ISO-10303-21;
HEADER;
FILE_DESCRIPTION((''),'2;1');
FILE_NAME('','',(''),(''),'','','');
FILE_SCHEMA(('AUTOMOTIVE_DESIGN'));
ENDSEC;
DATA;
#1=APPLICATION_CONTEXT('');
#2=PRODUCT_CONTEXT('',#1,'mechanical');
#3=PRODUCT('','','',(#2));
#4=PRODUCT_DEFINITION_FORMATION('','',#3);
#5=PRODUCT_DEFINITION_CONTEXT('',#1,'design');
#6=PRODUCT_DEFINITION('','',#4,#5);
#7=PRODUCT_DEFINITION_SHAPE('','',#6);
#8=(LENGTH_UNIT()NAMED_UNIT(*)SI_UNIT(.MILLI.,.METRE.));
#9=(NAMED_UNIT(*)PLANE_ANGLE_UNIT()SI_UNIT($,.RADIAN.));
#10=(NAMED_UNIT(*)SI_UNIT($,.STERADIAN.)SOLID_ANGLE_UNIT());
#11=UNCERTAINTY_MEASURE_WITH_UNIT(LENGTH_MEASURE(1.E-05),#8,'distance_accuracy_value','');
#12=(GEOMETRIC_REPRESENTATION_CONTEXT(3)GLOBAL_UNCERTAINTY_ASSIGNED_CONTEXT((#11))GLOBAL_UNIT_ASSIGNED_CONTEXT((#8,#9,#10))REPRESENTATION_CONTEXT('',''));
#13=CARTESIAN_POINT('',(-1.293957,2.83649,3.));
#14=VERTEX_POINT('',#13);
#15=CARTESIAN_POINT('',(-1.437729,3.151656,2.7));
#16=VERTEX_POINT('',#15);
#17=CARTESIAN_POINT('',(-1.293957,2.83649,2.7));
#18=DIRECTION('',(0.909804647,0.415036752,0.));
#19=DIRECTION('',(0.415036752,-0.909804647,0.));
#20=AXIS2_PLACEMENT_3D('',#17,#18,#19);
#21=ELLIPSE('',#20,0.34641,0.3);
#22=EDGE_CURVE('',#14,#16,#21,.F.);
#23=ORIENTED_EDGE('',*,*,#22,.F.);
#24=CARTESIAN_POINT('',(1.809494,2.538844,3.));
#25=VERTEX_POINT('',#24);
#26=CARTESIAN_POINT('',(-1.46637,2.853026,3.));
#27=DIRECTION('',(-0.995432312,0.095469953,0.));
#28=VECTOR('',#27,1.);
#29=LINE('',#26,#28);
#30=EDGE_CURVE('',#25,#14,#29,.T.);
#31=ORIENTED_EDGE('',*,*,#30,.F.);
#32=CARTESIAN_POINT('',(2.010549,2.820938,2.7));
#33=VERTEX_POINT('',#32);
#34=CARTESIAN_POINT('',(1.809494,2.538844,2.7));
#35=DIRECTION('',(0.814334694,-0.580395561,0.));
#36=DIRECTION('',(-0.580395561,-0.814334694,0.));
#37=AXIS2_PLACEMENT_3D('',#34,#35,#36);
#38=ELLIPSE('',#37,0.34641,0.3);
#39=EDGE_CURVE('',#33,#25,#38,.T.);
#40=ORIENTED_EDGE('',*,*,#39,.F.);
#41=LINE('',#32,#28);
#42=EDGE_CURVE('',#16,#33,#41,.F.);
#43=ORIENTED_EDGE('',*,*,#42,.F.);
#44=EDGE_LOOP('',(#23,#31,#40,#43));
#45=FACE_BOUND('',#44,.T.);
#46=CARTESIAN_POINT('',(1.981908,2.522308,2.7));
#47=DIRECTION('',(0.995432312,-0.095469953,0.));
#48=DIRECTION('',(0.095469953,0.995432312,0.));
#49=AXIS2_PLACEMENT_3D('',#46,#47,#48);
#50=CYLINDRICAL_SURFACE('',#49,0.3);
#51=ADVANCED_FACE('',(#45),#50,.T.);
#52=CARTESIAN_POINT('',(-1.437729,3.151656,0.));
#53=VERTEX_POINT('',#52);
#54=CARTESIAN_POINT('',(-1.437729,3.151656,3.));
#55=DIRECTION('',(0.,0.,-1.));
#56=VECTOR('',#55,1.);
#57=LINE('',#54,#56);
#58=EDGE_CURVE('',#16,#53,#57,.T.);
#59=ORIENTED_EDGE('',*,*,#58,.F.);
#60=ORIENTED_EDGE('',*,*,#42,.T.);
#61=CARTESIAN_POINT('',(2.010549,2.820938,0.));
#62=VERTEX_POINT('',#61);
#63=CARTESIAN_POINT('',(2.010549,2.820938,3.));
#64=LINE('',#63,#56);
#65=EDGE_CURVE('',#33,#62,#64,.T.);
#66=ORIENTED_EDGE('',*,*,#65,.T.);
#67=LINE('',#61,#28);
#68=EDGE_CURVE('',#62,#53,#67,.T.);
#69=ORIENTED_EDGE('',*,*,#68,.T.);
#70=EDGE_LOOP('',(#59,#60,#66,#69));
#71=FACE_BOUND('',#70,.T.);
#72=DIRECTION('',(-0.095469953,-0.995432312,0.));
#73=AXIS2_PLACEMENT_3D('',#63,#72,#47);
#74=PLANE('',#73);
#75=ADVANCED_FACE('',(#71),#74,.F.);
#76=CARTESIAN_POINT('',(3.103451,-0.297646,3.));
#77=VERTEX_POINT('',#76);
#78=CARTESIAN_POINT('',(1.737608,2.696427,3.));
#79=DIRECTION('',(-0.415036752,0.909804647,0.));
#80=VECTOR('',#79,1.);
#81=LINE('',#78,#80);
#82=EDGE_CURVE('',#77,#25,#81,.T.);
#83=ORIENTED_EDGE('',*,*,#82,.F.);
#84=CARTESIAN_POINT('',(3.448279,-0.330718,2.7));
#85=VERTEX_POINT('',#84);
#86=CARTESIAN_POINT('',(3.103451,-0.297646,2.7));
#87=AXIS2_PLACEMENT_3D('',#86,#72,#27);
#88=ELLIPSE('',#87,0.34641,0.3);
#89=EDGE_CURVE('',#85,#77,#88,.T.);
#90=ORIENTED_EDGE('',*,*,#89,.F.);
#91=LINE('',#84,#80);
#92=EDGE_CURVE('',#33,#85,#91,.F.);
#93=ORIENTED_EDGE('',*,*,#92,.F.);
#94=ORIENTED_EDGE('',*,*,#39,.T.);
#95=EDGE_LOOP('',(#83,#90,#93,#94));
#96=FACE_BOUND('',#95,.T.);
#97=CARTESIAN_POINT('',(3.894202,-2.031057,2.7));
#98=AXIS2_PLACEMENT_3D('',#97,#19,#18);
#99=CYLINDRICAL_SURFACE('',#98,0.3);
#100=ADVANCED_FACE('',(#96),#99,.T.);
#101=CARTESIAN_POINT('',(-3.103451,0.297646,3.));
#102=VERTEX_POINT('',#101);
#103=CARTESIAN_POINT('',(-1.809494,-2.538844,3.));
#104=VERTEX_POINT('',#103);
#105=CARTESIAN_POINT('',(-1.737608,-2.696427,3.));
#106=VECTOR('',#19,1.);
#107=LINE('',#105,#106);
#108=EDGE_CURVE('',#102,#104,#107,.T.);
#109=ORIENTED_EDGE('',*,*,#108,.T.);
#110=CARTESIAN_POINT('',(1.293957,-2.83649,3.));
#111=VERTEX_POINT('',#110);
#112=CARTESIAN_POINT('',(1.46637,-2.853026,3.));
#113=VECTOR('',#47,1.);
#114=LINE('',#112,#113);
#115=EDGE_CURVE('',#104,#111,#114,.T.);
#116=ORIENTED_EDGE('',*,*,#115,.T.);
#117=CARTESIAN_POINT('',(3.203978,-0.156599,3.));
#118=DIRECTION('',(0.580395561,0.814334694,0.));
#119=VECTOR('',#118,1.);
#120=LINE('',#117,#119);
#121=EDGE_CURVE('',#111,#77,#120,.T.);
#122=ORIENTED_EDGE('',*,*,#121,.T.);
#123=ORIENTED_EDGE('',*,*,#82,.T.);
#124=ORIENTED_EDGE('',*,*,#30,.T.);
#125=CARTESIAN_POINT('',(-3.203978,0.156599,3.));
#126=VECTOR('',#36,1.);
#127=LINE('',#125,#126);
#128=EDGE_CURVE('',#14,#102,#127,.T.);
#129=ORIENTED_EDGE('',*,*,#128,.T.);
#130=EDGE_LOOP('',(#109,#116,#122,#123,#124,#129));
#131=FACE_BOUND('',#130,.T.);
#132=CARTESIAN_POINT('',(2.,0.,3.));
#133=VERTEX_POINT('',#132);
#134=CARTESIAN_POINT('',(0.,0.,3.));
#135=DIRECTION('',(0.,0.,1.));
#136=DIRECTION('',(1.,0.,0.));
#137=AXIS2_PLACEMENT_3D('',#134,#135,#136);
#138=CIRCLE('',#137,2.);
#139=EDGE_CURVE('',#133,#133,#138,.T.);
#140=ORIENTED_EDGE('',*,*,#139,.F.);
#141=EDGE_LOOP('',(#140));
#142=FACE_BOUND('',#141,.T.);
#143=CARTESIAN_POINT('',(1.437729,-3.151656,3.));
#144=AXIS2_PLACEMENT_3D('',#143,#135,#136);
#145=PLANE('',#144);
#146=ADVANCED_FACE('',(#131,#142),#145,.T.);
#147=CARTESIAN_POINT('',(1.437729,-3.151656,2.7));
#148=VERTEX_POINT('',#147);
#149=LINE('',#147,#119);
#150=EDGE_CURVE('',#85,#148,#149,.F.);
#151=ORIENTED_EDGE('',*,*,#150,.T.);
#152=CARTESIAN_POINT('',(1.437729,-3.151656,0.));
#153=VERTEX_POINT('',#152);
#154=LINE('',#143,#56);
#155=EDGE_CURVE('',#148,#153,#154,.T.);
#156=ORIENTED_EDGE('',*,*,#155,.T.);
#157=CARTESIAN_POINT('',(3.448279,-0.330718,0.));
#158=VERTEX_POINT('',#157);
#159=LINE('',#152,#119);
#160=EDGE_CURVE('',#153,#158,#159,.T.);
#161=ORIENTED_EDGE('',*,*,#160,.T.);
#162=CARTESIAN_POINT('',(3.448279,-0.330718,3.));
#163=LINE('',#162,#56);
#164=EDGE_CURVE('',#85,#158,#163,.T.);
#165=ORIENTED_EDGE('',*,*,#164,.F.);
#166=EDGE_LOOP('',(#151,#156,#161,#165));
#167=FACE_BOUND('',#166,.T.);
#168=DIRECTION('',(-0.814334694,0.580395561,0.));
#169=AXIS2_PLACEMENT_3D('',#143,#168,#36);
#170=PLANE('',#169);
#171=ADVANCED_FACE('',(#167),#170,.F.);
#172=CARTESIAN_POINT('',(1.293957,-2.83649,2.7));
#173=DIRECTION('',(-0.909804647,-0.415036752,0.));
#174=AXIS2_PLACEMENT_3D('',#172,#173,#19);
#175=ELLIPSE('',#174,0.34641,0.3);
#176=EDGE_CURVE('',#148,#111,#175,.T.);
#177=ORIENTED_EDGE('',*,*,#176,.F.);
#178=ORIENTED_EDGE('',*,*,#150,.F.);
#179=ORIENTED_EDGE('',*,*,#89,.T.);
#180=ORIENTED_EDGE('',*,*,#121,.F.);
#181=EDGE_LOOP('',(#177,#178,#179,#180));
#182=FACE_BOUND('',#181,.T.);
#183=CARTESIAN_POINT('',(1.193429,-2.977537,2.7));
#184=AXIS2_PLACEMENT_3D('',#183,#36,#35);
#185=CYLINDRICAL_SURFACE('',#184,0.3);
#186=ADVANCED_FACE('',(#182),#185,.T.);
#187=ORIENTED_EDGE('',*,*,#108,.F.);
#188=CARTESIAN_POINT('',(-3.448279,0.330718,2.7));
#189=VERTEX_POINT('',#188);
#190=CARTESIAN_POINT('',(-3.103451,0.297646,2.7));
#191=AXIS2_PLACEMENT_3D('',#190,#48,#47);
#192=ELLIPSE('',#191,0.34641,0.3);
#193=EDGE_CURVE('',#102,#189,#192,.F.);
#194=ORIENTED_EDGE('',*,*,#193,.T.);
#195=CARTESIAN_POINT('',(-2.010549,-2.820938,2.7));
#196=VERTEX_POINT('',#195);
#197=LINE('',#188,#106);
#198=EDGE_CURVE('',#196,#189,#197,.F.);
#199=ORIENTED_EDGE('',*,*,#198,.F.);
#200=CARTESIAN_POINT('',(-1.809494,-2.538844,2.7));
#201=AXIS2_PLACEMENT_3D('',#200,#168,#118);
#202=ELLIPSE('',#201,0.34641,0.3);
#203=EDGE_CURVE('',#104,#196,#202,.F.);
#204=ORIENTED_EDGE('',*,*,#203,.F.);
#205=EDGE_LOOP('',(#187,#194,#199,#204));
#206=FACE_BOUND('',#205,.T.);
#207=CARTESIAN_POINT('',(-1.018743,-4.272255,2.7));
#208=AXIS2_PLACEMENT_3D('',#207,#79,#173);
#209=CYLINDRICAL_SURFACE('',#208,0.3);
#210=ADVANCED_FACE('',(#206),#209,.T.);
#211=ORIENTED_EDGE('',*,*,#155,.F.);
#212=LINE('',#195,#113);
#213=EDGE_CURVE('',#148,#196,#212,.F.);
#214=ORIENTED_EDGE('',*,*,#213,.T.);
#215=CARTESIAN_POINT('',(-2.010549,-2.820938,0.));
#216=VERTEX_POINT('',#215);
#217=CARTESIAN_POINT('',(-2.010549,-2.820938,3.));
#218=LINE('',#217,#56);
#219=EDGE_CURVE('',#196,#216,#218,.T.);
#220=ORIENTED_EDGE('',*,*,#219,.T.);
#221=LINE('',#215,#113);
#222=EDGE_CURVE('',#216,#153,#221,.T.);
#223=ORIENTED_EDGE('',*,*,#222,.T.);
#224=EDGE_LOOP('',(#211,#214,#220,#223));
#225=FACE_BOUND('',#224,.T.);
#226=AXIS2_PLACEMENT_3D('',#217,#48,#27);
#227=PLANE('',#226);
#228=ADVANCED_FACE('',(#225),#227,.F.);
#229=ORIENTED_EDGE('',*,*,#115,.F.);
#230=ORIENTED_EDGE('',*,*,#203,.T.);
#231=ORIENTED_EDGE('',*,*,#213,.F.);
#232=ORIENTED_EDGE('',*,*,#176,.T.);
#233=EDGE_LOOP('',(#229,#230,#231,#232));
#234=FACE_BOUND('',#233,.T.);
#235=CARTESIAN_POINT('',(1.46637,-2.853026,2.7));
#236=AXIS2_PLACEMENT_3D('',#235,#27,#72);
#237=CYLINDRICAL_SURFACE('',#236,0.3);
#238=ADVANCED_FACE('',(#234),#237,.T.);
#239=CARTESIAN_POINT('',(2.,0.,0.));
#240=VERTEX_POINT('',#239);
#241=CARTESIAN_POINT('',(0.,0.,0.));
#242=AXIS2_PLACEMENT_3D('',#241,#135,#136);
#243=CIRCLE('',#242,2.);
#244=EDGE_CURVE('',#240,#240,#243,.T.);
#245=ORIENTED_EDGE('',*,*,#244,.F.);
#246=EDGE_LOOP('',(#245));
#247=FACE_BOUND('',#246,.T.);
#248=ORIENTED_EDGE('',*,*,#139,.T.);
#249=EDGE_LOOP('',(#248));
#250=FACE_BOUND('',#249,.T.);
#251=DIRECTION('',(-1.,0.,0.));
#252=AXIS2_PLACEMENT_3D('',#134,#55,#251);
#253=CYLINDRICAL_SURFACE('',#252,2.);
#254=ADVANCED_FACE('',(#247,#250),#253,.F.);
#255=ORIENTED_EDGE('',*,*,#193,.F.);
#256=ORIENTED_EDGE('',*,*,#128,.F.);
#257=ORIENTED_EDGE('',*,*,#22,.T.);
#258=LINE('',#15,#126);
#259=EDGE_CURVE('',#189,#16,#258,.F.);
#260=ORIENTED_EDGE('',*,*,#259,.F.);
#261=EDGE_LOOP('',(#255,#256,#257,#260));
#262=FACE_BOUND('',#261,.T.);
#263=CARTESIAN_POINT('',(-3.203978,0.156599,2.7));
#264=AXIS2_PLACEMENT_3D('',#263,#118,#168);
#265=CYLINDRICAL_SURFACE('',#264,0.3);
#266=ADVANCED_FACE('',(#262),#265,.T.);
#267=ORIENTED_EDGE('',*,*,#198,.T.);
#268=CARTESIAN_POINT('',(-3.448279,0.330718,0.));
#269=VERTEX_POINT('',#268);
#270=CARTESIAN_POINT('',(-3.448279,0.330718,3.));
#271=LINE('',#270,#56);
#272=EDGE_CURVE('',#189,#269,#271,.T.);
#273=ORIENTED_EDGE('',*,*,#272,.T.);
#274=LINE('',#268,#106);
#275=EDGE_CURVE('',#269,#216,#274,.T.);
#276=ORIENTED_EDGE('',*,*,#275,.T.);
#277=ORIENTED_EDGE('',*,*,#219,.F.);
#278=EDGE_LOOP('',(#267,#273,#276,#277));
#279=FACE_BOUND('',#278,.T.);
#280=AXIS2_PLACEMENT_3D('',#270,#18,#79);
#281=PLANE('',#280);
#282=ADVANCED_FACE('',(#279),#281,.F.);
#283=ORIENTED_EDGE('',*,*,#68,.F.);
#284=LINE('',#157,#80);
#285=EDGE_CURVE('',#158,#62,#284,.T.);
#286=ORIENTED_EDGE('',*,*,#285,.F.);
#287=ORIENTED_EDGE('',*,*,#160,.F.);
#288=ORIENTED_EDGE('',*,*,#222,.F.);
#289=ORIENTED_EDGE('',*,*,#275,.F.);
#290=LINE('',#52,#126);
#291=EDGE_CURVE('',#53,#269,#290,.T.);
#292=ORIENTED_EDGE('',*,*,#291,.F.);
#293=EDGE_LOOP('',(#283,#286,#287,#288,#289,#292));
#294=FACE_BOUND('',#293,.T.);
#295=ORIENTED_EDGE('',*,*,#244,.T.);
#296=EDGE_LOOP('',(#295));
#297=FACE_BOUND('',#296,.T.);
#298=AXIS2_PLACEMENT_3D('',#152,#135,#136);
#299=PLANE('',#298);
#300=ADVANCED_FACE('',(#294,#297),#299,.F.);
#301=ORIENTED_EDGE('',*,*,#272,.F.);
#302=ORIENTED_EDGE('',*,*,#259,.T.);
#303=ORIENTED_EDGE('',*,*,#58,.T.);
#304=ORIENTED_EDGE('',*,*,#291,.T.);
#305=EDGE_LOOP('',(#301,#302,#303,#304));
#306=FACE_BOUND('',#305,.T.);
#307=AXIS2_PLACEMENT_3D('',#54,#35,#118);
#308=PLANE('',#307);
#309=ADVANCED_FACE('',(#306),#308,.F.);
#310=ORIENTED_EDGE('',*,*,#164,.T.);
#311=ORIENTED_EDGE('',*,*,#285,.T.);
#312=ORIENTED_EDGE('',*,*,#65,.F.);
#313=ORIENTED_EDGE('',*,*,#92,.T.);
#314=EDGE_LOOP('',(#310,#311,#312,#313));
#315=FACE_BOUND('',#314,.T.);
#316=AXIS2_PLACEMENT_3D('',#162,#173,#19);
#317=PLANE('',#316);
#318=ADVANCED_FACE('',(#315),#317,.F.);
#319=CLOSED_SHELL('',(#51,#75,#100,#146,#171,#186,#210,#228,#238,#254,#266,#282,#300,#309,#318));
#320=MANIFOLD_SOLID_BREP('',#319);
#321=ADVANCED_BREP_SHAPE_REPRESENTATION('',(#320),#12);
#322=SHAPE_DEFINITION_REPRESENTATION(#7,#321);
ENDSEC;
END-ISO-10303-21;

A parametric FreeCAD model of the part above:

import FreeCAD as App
import Part
import Sketcher

V = App.Vector


def edges_at(feature, points):
    """Names of the edges that pass closest to the given points."""
    edges = feature.Shape.Edges
    near = lambda p: min(range(len(edges)), key=lambda i: edges[i].distToShape(Part.Vertex(*p))[0])
    return sorted({f"Edge{near(p) + 1}" for p in points})


def add_polygon(sketch, points):
    """Adds a closed chain of lines whose ends are joined by coincident constraints."""
    first, n = sketch.GeometryCount, len(points)
    for a, b in zip(points, points[1:] + points[:1]):
        sketch.addGeometry(Part.LineSegment(App.Vector(*a, 0), App.Vector(*b, 0)), False)
    for i in range(n):
        sketch.addConstraint(Sketcher.Constraint("Coincident", first + i, 2, first + (i + 1) % n, 1))

doc = App.newDocument("Part")
body = doc.addObject("PartDesign::Body", "Body")

# Sketch on XY plane
sketch1 = body.newObject("Sketcher::SketchObject", "Sketch")
sketch1.AttachmentSupport = (doc.getObject("XY_Plane"), [""])
sketch1.MapMode = "FlatFace"
add_polygon(sketch1, [(1.437729, -3.151656), (3.448279, -0.330718), (2.010549, 2.820938), (-1.437729, 3.151656), (-3.448279, 0.330718), (-2.010549, -2.820938)])  # lines 0-5
sketch1.addGeometry(Part.Circle(V(0, 0, 0), V(0, 0, 1), 2), False)  # 6
sketch1.addConstraint([
    Sketcher.Constraint("Coincident", 6, 3, -1, 1),
    Sketcher.Constraint("Symmetric", 0, 2, 3, 2, -1, 1),
    Sketcher.Constraint("Symmetric", 1, 2, 4, 2, -1, 1),
    Sketcher.Constraint("Symmetric", 2, 2, 5, 2, -1, 1),
    Sketcher.Constraint("Equal", 0, 1),
    Sketcher.Constraint("Equal", 1, 2),
    Sketcher.Constraint("Diameter", 6, 4.0),
    Sketcher.Constraint("Distance", 0, 3.464102),
    Sketcher.Constraint("DistanceX", 4, 2, 1, 2, 4.021098),
    Sketcher.Constraint("DistanceX", -1, 1, 0, 2, 3.448279),
    Sketcher.Constraint("DistanceY", -1, 1, 1, 2, 2.820938),
])
pad1 = body.newObject("PartDesign::Pad", "Pad")
pad1.Profile = sketch1
pad1.Length = 3
doc.recompute()

fillet = body.newObject("PartDesign::Fillet", "Fillet")
fillet.Base = (pad1, edges_at(pad1, [
    (2.729, 1.245, 3),
    (0.286, 2.986, 3),
    (-2.443, 1.741, 3),
    (-2.729, -1.245, 3),
    (-0.286, -2.986, 3),
    (2.443, -1.741, 3),
]))
fillet.Radius = 0.3

doc.recompute()
